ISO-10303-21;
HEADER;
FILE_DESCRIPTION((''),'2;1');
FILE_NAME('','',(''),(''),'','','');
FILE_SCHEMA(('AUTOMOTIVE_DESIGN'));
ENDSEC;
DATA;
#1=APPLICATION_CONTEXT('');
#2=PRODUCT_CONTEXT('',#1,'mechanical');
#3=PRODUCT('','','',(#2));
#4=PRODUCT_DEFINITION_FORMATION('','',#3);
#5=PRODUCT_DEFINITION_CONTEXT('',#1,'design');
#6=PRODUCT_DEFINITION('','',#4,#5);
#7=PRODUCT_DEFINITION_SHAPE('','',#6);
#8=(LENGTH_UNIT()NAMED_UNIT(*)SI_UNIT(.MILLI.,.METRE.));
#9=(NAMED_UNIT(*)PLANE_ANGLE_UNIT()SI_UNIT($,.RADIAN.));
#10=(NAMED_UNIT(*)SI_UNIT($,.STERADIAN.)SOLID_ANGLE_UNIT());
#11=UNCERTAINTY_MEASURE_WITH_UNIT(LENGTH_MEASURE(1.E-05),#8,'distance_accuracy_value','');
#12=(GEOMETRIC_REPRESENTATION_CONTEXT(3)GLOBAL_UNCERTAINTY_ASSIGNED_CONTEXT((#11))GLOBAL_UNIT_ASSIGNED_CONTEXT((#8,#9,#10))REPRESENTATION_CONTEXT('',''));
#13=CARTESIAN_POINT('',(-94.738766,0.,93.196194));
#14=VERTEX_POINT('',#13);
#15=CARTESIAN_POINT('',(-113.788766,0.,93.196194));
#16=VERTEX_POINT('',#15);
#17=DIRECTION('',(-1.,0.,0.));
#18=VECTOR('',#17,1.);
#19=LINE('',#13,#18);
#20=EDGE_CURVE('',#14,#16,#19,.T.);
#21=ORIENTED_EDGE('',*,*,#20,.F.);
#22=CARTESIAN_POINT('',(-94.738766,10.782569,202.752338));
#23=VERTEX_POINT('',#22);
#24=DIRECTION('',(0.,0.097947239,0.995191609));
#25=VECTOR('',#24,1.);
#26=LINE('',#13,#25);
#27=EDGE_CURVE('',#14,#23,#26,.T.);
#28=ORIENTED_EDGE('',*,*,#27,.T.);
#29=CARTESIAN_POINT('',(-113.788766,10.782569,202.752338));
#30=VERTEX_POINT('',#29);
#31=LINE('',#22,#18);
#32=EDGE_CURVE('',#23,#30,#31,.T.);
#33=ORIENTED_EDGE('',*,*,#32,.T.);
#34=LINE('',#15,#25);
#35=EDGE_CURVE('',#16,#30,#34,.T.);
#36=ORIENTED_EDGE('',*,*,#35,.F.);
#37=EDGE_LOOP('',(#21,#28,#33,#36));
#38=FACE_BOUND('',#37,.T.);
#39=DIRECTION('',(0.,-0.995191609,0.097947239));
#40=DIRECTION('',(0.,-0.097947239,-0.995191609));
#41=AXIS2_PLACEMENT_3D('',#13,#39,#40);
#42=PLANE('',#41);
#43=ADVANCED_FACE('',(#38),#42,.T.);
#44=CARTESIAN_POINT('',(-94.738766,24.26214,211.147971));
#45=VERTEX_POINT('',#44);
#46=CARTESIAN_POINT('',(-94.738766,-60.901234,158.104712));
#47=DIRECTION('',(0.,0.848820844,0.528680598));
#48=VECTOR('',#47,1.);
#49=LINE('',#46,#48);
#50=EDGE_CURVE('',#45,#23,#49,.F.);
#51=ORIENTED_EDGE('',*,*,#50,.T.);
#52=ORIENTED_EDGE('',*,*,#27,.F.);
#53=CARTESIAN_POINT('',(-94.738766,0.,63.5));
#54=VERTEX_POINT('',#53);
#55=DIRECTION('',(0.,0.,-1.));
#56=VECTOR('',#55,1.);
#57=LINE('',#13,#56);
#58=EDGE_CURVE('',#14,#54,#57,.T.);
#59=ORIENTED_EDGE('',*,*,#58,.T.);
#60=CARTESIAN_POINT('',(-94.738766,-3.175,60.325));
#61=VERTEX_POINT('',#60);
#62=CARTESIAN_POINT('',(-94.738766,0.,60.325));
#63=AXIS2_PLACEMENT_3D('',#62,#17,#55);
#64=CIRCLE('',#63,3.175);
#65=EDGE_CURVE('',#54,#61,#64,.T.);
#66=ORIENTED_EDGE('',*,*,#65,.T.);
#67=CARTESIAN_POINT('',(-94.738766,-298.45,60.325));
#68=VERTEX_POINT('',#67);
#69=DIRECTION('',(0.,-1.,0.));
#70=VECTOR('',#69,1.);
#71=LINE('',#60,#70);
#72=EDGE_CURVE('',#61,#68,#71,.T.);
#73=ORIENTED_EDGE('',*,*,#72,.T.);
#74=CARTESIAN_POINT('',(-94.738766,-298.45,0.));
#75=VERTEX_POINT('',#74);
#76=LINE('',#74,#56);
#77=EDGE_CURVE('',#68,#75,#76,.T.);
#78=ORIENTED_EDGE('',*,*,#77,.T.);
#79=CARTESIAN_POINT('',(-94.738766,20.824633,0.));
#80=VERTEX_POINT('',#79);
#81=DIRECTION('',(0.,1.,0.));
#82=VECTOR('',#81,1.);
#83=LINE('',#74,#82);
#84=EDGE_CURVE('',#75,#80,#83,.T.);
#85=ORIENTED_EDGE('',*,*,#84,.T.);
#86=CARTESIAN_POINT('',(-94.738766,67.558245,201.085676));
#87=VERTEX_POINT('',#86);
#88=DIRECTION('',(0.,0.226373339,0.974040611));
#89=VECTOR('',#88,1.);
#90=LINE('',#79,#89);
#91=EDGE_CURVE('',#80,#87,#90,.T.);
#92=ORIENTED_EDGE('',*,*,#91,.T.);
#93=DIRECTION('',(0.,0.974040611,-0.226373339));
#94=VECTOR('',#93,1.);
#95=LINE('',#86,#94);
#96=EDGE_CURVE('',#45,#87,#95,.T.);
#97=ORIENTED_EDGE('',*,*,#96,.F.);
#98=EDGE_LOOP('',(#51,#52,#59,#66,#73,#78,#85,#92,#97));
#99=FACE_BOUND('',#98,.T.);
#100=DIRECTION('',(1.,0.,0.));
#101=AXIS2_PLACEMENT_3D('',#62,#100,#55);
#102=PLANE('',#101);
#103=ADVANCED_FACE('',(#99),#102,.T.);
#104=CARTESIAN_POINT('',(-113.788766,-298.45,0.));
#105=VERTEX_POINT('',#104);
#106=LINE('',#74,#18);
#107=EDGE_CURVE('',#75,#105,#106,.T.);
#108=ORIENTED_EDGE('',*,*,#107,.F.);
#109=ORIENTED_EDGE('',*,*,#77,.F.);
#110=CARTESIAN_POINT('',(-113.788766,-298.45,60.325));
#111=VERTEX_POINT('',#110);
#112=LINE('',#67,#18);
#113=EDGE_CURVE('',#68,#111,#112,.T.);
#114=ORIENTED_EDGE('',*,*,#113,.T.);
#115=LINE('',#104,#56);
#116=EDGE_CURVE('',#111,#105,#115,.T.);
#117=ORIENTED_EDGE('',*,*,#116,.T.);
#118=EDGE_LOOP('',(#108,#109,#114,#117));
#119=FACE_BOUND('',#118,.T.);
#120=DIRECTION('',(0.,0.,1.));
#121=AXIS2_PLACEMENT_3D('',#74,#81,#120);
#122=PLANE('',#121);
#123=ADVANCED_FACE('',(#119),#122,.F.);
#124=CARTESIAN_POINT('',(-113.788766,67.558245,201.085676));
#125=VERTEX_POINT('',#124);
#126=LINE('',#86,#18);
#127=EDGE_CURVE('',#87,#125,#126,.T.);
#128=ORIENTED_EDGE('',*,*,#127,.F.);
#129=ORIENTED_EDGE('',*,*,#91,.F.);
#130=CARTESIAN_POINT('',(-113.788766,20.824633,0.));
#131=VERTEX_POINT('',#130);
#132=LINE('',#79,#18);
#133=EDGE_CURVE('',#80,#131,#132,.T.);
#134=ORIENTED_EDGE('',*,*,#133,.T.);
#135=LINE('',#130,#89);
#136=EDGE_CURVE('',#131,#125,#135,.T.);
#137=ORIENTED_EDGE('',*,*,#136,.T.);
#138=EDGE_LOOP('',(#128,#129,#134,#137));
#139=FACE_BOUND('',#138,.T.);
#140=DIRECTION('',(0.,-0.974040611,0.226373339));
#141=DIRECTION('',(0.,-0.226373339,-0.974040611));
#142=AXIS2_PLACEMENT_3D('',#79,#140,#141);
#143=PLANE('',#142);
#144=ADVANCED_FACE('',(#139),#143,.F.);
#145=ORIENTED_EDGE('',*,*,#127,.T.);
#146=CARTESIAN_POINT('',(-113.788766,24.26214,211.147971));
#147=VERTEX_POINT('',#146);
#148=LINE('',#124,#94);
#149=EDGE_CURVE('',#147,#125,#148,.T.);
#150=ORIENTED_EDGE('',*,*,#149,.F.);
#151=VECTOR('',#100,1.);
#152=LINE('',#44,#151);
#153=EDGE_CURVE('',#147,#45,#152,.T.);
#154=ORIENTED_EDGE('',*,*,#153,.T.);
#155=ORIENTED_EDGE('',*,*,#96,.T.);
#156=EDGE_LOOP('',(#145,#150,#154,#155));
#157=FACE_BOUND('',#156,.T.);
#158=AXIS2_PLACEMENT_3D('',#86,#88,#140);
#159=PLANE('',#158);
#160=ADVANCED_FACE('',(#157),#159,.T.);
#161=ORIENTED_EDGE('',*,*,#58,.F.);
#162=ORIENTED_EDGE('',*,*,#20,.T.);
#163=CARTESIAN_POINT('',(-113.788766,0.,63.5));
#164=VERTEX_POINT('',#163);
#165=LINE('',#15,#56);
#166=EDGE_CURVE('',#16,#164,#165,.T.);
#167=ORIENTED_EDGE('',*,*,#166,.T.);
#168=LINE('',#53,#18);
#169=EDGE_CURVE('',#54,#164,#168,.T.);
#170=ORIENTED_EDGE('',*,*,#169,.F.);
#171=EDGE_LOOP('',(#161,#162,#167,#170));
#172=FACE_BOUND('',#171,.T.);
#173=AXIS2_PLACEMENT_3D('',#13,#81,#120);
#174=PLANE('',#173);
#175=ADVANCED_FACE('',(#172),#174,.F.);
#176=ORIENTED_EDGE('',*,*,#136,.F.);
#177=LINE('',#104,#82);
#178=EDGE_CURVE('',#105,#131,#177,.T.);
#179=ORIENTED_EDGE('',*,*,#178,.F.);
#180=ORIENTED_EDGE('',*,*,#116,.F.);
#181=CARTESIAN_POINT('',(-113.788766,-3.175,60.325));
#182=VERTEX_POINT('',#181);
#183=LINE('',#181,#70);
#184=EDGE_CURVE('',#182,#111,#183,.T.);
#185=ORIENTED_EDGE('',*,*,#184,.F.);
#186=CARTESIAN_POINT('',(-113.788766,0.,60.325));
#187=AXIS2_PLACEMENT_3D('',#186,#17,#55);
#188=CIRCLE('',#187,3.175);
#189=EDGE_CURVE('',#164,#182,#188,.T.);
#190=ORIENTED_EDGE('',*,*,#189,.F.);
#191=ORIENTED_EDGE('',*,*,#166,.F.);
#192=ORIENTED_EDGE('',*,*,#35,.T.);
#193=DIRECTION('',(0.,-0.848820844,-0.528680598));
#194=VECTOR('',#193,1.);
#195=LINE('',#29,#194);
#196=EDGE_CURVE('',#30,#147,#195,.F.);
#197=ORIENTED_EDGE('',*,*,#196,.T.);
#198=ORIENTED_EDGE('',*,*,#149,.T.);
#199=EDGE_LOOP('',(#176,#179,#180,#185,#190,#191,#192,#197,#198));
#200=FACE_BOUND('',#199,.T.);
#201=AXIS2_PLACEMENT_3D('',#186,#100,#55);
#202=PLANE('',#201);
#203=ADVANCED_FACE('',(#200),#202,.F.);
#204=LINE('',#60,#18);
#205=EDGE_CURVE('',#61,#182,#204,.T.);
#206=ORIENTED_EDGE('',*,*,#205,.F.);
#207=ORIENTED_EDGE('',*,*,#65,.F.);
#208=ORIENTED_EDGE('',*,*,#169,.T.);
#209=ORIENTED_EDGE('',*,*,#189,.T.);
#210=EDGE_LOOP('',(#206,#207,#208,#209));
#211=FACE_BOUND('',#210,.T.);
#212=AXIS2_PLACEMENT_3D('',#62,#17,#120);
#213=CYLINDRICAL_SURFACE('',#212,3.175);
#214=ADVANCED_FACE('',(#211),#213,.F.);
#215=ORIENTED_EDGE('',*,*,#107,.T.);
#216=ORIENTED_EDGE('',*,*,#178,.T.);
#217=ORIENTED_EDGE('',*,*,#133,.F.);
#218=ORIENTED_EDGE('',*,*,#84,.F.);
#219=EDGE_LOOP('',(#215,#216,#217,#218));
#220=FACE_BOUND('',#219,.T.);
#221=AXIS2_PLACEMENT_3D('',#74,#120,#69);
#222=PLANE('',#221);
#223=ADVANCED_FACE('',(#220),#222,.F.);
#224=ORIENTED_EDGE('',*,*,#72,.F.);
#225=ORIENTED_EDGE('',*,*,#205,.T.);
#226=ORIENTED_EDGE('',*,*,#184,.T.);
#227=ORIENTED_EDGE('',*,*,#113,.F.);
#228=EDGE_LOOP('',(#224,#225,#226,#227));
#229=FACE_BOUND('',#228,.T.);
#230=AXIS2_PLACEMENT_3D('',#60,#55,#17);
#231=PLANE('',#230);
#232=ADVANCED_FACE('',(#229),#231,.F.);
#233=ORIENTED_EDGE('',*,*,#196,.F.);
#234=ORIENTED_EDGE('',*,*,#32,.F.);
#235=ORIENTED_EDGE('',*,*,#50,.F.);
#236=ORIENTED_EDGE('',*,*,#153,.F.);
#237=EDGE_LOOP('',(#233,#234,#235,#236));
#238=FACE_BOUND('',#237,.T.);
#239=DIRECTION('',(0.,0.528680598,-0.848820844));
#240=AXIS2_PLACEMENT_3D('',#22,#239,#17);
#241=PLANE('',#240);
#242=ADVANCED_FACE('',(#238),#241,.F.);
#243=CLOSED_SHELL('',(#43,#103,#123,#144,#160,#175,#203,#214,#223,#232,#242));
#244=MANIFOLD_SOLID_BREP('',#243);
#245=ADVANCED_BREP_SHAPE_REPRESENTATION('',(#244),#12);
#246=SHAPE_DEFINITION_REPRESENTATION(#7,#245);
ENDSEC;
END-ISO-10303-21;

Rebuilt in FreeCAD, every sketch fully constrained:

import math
import FreeCAD as App
import Part
import Sketcher
Q = App.Units.Quantity


def edges_at(feature, points):
    """Names of the edges that pass closest to the given points."""
    edges = feature.Shape.Edges
    near = lambda p: min(range(len(edges)), key=lambda i: edges[i].distToShape(Part.Vertex(*p))[0])
    return sorted({f"Edge{near(p) + 1}" for p in points})


def add_polygon(sketch, points):
    """Adds a closed chain of lines whose ends are joined by coincident constraints."""
    first, n = sketch.GeometryCount, len(points)
    for a, b in zip(points, points[1:] + points[:1]):
        sketch.addGeometry(Part.LineSegment(App.Vector(*a, 0), App.Vector(*b, 0)), False)
    for i in range(n):
        sketch.addConstraint(Sketcher.Constraint("Coincident", first + i, 2, first + (i + 1) % n, 1))

doc = App.newDocument("Part")
params = doc.addObject("Spreadsheet::Sheet", "Params")
for row, (alias, value) in enumerate([
    ("sketch1_radius", "0.125 in"),
    ("sketch1_width", "11.625 in"),
    ("sketch1_height", "2.375 in"),
    ("pad1_length", "0.75 in"),
    ("sketch2_length", "2.25 in"),
    ("pad2_length", "0.75 in"),
    ("chamfer_size", "0.5 in"),
    ("chamfer_size2", "11.325029 mm"),
], start=1):
    params.set(f"A{row}", alias)
    params.set(f"B{row}", "=" + value)
    params.setAlias(f"B{row}", alias)

body = doc.addObject("PartDesign::Body", "Body")

# Sketch on YZ plane
sketch1 = body.newObject("Sketcher::SketchObject", "Sketch")
sketch1.AttachmentSupport = (doc.getObject("YZ_Plane"), [""])
sketch1.MapMode = "FlatFace"
sketch1.AttachmentOffset = App.Placement(App.Vector(0, 0, -113.788766), App.Rotation())
sketch1.addGeometry([
    Part.LineSegment(App.Vector(20.8, 0, 0), App.Vector(40.3, 83.8, 0)),  # 0
    Part.LineSegment(App.Vector(40.3, 83.8, 0), App.Vector(0, 93.2, 0)),  # 1
    Part.LineSegment(App.Vector(0, 93.2, 0), App.Vector(0, 63.5, 0)),  # 2
    Part.ArcOfCircle(Part.Circle(App.Vector(0, 60.3, 0), App.Vector(0, 0, 1), 3.2), math.radians(180), math.radians(450)),  # 3
    Part.LineSegment(App.Vector(-3.2, 60.3, 0), App.Vector(-298.4, 60.3, 0)),  # 4
    Part.LineSegment(App.Vector(-298.4, 60.3, 0), App.Vector(-298.4, 0, 0)),  # 5
    Part.LineSegment(App.Vector(-298.4, 0, 0), App.Vector(20.8, 0, 0)),  # 6
], False)
sketch1.addConstraint([
    Sketcher.Constraint("Coincident", 0, 2, 1, 1),
    Sketcher.Constraint("Coincident", 1, 2, 2, 1),
    Sketcher.Constraint("Coincident", 2, 2, 3, 2),
    Sketcher.Constraint("Coincident", 3, 1, 4, 1),
    Sketcher.Constraint("Coincident", 4, 2, 5, 1),
    Sketcher.Constraint("Coincident", 5, 2, 6, 1),
    Sketcher.Constraint("Coincident", 6, 2, 0, 1),
    Sketcher.Constraint("Vertical", 2),
    Sketcher.Constraint("Horizontal", 4),
    Sketcher.Constraint("Vertical", 5),
    Sketcher.Constraint("Horizontal", 6),
    Sketcher.Constraint("PointOnObject", 3, 3, -2),
    Sketcher.Constraint("PointOnObject", 1, 2, -2),
    Sketcher.Constraint("PointOnObject", 5, 2, -1),
    Sketcher.Constraint("Perpendicular", 0, 1),
    Sketcher.Constraint("Radius", 3, Q("0.125 in")),
    Sketcher.Constraint("DistanceY", -1, 1, 2, 2, Q("2.5 in")),
    Sketcher.Constraint("DistanceX", 4, 2, 4, 1, Q("11.625 in")),
    Sketcher.Constraint("DistanceY", 5, 2, 5, 1, Q("2.375 in")),
    Sketcher.Constraint("DistanceY", -1, 1, 0, 2, Q("83.8286 mm")),
    Sketcher.Constraint("Distance", 1, Q("41.381172 mm")),
    Sketcher.Constraint("DistanceX", 6, 1, 6, 2, Q("319.274633 mm")),
])
sketch1.setExpression("Constraints[15]", "Params.sketch1_radius")
sketch1.setExpression("Constraints[17]", "Params.sketch1_width")
sketch1.setExpression("Constraints[18]", "Params.sketch1_height")
pad1 = body.newObject("PartDesign::Pad", "Pad")
pad1.Profile = sketch1
pad1.setExpression("Length", "Params.pad1_length")

# Sketch on YZ plane
sketch2 = body.newObject("Sketcher::SketchObject", "Sketch001")
sketch2.AttachmentSupport = (doc.getObject("YZ_Plane"), [""])
sketch2.MapMode = "FlatFace"
sketch2.AttachmentOffset = App.Placement(App.Vector(0, 0, -113.788766), App.Rotation())
add_polygon(sketch2, [(68, 201), (40, 84), (0, 93), (12, 214)])  # lines 0-3
sketch2.addConstraint([
    Sketcher.Constraint("PointOnObject", 1, 2, -2),
    Sketcher.Constraint("Perpendicular", 0, 1),
    Sketcher.Constraint("Parallel", 1, 3),
    Sketcher.Constraint("Distance", 3, Q("2.25 in")),
    Sketcher.Constraint("DistanceY", -1, 1, 0, 2, Q("83.8286 mm")),
    Sketcher.Constraint("Distance", 1, Q("41.381172 mm")),
    Sketcher.Constraint("DistanceX", -1, 1, 0, 2, Q("40.306942 mm")),
    Sketcher.Constraint("DistanceY", 1, 2, 2, 2, Q("120.826718 mm")),
])
sketch2.setExpression("Constraints[7]", "Params.sketch2_length")
pad2 = body.newObject("PartDesign::Pad", "Pad001")
pad2.Profile = sketch2
pad2.setExpression("Length", "Params.pad2_length")
doc.recompute()

chamfer = body.newObject("PartDesign::Chamfer", "Chamfer")
chamfer.Base = (pad2, edges_at(pad2, [(-104.264, 11.892, 214.023)]))
chamfer.ChamferType = "Two distances"
chamfer.setExpression("Size", "Params.chamfer_size")
chamfer.setExpression("Size2", "Params.chamfer_size2")

doc.recompute()
